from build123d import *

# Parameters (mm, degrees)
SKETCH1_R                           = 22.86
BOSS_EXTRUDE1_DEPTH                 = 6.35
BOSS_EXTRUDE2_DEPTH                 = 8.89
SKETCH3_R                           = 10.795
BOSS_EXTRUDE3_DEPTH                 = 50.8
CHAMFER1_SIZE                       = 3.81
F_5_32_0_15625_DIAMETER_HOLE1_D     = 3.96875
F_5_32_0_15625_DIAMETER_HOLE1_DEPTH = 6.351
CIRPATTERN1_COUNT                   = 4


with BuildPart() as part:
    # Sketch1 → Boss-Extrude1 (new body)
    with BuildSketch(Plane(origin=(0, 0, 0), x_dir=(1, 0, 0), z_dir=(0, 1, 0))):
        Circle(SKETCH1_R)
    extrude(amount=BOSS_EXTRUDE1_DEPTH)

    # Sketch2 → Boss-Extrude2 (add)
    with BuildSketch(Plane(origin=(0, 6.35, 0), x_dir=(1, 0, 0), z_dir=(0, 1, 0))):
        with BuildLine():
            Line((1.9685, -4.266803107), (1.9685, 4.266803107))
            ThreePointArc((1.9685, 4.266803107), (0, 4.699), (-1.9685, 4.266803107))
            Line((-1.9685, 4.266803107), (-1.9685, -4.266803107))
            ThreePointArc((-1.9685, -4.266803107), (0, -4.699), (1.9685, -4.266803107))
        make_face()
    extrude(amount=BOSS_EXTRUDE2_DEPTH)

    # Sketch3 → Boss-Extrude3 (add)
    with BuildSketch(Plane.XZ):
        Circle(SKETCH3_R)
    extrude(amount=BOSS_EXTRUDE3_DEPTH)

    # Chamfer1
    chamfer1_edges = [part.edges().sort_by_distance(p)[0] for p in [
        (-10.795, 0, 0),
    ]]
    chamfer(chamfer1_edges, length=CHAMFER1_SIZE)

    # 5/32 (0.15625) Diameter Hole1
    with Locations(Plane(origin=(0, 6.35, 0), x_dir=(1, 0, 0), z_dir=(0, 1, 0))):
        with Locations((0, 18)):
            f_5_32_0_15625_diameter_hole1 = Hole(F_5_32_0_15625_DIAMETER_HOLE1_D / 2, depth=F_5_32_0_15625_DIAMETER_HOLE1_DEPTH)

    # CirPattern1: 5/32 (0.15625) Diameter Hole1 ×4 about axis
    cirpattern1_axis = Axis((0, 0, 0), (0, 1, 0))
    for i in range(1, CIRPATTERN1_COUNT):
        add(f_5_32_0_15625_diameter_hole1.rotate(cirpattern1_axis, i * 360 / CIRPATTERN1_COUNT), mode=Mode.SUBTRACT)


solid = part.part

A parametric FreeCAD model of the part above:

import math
import FreeCAD as App
import Part
import Sketcher
from FreeCAD import Vector
Q = App.Units.Quantity


def edges_at(feature, points):
    """Names of the edges that pass closest to the given points."""
    edges = feature.Shape.Edges
    near = lambda p: min(range(len(edges)), key=lambda i: edges[i].distToShape(Part.Vertex(*p))[0])
    return sorted({f"Edge{near(p) + 1}" for p in points})

doc = App.newDocument("Part")
params = doc.addObject("Spreadsheet::Sheet", "Params")
for row, (alias, value) in enumerate([
    ("sketch1_diameter", "1.8 in"),
    ("pad1_length", "0.25 in"),
    ("sketch2_radius", "0.185 in"),
    ("pad2_length", "0.35 in"),
    ("sketch3_diameter", "0.85 in"),
    ("pad3_length", "2 in"),
    ("chamfer_size", "0.15 in"),
    ("sketch4_diameter", "0.15625 in"),
    ("hole_diameter", "0.15625 in"),
    ("hole_depth", "6.351 mm"),
], start=1):
    params.set(f"A{row}", alias)
    params.set(f"B{row}", "=" + value)
    params.setAlias(f"B{row}", alias)

body = doc.addObject("PartDesign::Body", "Body")

sketch1 = doc.addObject("Sketcher::SketchObject", "Sketch")
body.addObject(sketch1)
sketch1.AttachmentSupport = (doc.XZ_Plane, [""])
sketch1.MapMode = "FlatFace"
sketch1.addGeometry(Part.Circle(Vector(0, 0, 0), Vector(0, 0, 1), 23), False)
sketch1.addConstraint(Sketcher.Constraint("Coincident", 0, 3, -1, 1))
sketch1.addConstraint(Sketcher.Constraint("Diameter", 0, Q("1.8 in")))
sketch1.setExpression("Constraints[1]", "Params.sketch1_diameter")
pad1 = doc.addObject("PartDesign::Pad", "Pad")
body.addObject(pad1)
pad1.Profile = sketch1
pad1.setExpression("Length", "Params.pad1_length")
pad1.Reversed = True

sketch2 = doc.addObject("Sketcher::SketchObject", "Sketch001")
body.addObject(sketch2)
sketch2.AttachmentSupport = (doc.XZ_Plane, [""])
sketch2.MapMode = "FlatFace"
sketch2.AttachmentOffset = App.Placement(Vector(0, 0, -0.25 * 25.4), App.Rotation())
sketch2.addGeometry(Part.LineSegment(Vector(2, 4.3, 0), Vector(2, -4.3, 0)), False)
sketch2.addGeometry(Part.ArcOfCircle(Part.Circle(Vector(0, 0, 0), Vector(0, 0, 1), 4.7), math.radians(-115), math.radians(-65)), False)
sketch2.addGeometry(Part.LineSegment(Vector(-2, -4.3, 0), Vector(-2, 4.3, 0)), False)
sketch2.addGeometry(Part.ArcOfCircle(Part.Circle(Vector(0, 0, 0), Vector(0, 0, 1), 4.7), math.radians(65), math.radians(115)), False)
sketch2.addConstraint(Sketcher.Constraint("Coincident", 0, 2, 1, 2))
sketch2.addConstraint(Sketcher.Constraint("Coincident", 1, 1, 2, 1))
sketch2.addConstraint(Sketcher.Constraint("Coincident", 2, 2, 3, 2))
sketch2.addConstraint(Sketcher.Constraint("Coincident", 3, 1, 0, 1))
sketch2.addConstraint(Sketcher.Constraint("Vertical", 0))
sketch2.addConstraint(Sketcher.Constraint("Vertical", 2))
sketch2.addConstraint(Sketcher.Constraint("Coincident", 1, 3, -1, 1))
sketch2.addConstraint(Sketcher.Constraint("Coincident", 3, 3, -1, 1))
sketch2.addConstraint(Sketcher.Constraint("Equal", 1, 3))
sketch2.addConstraint(Sketcher.Constraint("Horizontal", 0, 2, 1, 1))
sketch2.addConstraint(Sketcher.Constraint("Radius", 1, Q("0.185 in")))
sketch2.addConstraint(Sketcher.Constraint("DistanceX", 1, 1, 0, 2, Q("0.155 in")))
sketch2.setExpression("Constraints[10]", "Params.sketch2_radius")
pad2 = doc.addObject("PartDesign::Pad", "Pad001")
body.addObject(pad2)
pad2.Profile = sketch2
pad2.setExpression("Length", "Params.pad2_length")
pad2.Reversed = True

sketch3 = doc.addObject("Sketcher::SketchObject", "Sketch002")
body.addObject(sketch3)
sketch3.AttachmentSupport = (doc.XZ_Plane, [""])
sketch3.MapMode = "FlatFace"
sketch3.addGeometry(Part.Circle(Vector(0, 0, 0), Vector(0, 0, 1), 11), False)
sketch3.addConstraint(Sketcher.Constraint("Coincident", 0, 3, -1, 1))
sketch3.addConstraint(Sketcher.Constraint("Diameter", 0, Q("0.85 in")))
sketch3.setExpression("Constraints[1]", "Params.sketch3_diameter")
pad3 = doc.addObject("PartDesign::Pad", "Pad002")
body.addObject(pad3)
pad3.Profile = sketch3
pad3.setExpression("Length", "Params.pad3_length")
doc.recompute()

chamfer = doc.addObject("PartDesign::Chamfer", "Chamfer")
body.addObject(chamfer)
chamfer.Base = (pad3, edges_at(pad3, [(-10.795, 0, 0)]))
chamfer.setExpression("Size", "Params.chamfer_size")

sketch4 = doc.addObject("Sketcher::SketchObject", "Sketch003")
body.addObject(sketch4)
sketch4.AttachmentSupport = (doc.XZ_Plane, [""])
sketch4.MapMode = "FlatFace"
sketch4.AttachmentOffset = App.Placement(Vector(0, 0, -0.25 * 25.4), App.Rotation())
sketch4.addGeometry(Part.Circle(Vector(0, -18, 0), Vector(0, 0, 1), 2), False)
sketch4.addConstraint(Sketcher.Constraint("PointOnObject", 0, 3, -2))
sketch4.addConstraint(Sketcher.Constraint("Diameter", 0, Q("0.15625 in")))
sketch4.addConstraint(Sketcher.Constraint("DistanceY", 0, 3, -1, 1, Q("18 mm")))
sketch4.setExpression("Constraints[1]", "Params.sketch4_diameter")
doc.recompute()
hole = doc.addObject("PartDesign::Hole", "Hole")
body.addObject(hole)
hole.Profile = sketch4
hole.ThreadType = "None"
hole.setExpression("Diameter", "Params.hole_diameter")
hole.DepthType = "Dimension"
hole.setExpression("Depth", "Params.hole_depth")
hole.DrillPoint = "Flat"
hole.Reversed = True
doc.recompute()

polarpattern = doc.addObject("PartDesign::PolarPattern", "PolarPattern")
body.addObject(polarpattern)
polarpattern.Originals = [hole]
polarpattern.Axis = (doc.Y_Axis, [""])
polarpattern.Angle = 360
polarpattern.Occurrences = 4
body.Tip = polarpattern

doc.recompute()
